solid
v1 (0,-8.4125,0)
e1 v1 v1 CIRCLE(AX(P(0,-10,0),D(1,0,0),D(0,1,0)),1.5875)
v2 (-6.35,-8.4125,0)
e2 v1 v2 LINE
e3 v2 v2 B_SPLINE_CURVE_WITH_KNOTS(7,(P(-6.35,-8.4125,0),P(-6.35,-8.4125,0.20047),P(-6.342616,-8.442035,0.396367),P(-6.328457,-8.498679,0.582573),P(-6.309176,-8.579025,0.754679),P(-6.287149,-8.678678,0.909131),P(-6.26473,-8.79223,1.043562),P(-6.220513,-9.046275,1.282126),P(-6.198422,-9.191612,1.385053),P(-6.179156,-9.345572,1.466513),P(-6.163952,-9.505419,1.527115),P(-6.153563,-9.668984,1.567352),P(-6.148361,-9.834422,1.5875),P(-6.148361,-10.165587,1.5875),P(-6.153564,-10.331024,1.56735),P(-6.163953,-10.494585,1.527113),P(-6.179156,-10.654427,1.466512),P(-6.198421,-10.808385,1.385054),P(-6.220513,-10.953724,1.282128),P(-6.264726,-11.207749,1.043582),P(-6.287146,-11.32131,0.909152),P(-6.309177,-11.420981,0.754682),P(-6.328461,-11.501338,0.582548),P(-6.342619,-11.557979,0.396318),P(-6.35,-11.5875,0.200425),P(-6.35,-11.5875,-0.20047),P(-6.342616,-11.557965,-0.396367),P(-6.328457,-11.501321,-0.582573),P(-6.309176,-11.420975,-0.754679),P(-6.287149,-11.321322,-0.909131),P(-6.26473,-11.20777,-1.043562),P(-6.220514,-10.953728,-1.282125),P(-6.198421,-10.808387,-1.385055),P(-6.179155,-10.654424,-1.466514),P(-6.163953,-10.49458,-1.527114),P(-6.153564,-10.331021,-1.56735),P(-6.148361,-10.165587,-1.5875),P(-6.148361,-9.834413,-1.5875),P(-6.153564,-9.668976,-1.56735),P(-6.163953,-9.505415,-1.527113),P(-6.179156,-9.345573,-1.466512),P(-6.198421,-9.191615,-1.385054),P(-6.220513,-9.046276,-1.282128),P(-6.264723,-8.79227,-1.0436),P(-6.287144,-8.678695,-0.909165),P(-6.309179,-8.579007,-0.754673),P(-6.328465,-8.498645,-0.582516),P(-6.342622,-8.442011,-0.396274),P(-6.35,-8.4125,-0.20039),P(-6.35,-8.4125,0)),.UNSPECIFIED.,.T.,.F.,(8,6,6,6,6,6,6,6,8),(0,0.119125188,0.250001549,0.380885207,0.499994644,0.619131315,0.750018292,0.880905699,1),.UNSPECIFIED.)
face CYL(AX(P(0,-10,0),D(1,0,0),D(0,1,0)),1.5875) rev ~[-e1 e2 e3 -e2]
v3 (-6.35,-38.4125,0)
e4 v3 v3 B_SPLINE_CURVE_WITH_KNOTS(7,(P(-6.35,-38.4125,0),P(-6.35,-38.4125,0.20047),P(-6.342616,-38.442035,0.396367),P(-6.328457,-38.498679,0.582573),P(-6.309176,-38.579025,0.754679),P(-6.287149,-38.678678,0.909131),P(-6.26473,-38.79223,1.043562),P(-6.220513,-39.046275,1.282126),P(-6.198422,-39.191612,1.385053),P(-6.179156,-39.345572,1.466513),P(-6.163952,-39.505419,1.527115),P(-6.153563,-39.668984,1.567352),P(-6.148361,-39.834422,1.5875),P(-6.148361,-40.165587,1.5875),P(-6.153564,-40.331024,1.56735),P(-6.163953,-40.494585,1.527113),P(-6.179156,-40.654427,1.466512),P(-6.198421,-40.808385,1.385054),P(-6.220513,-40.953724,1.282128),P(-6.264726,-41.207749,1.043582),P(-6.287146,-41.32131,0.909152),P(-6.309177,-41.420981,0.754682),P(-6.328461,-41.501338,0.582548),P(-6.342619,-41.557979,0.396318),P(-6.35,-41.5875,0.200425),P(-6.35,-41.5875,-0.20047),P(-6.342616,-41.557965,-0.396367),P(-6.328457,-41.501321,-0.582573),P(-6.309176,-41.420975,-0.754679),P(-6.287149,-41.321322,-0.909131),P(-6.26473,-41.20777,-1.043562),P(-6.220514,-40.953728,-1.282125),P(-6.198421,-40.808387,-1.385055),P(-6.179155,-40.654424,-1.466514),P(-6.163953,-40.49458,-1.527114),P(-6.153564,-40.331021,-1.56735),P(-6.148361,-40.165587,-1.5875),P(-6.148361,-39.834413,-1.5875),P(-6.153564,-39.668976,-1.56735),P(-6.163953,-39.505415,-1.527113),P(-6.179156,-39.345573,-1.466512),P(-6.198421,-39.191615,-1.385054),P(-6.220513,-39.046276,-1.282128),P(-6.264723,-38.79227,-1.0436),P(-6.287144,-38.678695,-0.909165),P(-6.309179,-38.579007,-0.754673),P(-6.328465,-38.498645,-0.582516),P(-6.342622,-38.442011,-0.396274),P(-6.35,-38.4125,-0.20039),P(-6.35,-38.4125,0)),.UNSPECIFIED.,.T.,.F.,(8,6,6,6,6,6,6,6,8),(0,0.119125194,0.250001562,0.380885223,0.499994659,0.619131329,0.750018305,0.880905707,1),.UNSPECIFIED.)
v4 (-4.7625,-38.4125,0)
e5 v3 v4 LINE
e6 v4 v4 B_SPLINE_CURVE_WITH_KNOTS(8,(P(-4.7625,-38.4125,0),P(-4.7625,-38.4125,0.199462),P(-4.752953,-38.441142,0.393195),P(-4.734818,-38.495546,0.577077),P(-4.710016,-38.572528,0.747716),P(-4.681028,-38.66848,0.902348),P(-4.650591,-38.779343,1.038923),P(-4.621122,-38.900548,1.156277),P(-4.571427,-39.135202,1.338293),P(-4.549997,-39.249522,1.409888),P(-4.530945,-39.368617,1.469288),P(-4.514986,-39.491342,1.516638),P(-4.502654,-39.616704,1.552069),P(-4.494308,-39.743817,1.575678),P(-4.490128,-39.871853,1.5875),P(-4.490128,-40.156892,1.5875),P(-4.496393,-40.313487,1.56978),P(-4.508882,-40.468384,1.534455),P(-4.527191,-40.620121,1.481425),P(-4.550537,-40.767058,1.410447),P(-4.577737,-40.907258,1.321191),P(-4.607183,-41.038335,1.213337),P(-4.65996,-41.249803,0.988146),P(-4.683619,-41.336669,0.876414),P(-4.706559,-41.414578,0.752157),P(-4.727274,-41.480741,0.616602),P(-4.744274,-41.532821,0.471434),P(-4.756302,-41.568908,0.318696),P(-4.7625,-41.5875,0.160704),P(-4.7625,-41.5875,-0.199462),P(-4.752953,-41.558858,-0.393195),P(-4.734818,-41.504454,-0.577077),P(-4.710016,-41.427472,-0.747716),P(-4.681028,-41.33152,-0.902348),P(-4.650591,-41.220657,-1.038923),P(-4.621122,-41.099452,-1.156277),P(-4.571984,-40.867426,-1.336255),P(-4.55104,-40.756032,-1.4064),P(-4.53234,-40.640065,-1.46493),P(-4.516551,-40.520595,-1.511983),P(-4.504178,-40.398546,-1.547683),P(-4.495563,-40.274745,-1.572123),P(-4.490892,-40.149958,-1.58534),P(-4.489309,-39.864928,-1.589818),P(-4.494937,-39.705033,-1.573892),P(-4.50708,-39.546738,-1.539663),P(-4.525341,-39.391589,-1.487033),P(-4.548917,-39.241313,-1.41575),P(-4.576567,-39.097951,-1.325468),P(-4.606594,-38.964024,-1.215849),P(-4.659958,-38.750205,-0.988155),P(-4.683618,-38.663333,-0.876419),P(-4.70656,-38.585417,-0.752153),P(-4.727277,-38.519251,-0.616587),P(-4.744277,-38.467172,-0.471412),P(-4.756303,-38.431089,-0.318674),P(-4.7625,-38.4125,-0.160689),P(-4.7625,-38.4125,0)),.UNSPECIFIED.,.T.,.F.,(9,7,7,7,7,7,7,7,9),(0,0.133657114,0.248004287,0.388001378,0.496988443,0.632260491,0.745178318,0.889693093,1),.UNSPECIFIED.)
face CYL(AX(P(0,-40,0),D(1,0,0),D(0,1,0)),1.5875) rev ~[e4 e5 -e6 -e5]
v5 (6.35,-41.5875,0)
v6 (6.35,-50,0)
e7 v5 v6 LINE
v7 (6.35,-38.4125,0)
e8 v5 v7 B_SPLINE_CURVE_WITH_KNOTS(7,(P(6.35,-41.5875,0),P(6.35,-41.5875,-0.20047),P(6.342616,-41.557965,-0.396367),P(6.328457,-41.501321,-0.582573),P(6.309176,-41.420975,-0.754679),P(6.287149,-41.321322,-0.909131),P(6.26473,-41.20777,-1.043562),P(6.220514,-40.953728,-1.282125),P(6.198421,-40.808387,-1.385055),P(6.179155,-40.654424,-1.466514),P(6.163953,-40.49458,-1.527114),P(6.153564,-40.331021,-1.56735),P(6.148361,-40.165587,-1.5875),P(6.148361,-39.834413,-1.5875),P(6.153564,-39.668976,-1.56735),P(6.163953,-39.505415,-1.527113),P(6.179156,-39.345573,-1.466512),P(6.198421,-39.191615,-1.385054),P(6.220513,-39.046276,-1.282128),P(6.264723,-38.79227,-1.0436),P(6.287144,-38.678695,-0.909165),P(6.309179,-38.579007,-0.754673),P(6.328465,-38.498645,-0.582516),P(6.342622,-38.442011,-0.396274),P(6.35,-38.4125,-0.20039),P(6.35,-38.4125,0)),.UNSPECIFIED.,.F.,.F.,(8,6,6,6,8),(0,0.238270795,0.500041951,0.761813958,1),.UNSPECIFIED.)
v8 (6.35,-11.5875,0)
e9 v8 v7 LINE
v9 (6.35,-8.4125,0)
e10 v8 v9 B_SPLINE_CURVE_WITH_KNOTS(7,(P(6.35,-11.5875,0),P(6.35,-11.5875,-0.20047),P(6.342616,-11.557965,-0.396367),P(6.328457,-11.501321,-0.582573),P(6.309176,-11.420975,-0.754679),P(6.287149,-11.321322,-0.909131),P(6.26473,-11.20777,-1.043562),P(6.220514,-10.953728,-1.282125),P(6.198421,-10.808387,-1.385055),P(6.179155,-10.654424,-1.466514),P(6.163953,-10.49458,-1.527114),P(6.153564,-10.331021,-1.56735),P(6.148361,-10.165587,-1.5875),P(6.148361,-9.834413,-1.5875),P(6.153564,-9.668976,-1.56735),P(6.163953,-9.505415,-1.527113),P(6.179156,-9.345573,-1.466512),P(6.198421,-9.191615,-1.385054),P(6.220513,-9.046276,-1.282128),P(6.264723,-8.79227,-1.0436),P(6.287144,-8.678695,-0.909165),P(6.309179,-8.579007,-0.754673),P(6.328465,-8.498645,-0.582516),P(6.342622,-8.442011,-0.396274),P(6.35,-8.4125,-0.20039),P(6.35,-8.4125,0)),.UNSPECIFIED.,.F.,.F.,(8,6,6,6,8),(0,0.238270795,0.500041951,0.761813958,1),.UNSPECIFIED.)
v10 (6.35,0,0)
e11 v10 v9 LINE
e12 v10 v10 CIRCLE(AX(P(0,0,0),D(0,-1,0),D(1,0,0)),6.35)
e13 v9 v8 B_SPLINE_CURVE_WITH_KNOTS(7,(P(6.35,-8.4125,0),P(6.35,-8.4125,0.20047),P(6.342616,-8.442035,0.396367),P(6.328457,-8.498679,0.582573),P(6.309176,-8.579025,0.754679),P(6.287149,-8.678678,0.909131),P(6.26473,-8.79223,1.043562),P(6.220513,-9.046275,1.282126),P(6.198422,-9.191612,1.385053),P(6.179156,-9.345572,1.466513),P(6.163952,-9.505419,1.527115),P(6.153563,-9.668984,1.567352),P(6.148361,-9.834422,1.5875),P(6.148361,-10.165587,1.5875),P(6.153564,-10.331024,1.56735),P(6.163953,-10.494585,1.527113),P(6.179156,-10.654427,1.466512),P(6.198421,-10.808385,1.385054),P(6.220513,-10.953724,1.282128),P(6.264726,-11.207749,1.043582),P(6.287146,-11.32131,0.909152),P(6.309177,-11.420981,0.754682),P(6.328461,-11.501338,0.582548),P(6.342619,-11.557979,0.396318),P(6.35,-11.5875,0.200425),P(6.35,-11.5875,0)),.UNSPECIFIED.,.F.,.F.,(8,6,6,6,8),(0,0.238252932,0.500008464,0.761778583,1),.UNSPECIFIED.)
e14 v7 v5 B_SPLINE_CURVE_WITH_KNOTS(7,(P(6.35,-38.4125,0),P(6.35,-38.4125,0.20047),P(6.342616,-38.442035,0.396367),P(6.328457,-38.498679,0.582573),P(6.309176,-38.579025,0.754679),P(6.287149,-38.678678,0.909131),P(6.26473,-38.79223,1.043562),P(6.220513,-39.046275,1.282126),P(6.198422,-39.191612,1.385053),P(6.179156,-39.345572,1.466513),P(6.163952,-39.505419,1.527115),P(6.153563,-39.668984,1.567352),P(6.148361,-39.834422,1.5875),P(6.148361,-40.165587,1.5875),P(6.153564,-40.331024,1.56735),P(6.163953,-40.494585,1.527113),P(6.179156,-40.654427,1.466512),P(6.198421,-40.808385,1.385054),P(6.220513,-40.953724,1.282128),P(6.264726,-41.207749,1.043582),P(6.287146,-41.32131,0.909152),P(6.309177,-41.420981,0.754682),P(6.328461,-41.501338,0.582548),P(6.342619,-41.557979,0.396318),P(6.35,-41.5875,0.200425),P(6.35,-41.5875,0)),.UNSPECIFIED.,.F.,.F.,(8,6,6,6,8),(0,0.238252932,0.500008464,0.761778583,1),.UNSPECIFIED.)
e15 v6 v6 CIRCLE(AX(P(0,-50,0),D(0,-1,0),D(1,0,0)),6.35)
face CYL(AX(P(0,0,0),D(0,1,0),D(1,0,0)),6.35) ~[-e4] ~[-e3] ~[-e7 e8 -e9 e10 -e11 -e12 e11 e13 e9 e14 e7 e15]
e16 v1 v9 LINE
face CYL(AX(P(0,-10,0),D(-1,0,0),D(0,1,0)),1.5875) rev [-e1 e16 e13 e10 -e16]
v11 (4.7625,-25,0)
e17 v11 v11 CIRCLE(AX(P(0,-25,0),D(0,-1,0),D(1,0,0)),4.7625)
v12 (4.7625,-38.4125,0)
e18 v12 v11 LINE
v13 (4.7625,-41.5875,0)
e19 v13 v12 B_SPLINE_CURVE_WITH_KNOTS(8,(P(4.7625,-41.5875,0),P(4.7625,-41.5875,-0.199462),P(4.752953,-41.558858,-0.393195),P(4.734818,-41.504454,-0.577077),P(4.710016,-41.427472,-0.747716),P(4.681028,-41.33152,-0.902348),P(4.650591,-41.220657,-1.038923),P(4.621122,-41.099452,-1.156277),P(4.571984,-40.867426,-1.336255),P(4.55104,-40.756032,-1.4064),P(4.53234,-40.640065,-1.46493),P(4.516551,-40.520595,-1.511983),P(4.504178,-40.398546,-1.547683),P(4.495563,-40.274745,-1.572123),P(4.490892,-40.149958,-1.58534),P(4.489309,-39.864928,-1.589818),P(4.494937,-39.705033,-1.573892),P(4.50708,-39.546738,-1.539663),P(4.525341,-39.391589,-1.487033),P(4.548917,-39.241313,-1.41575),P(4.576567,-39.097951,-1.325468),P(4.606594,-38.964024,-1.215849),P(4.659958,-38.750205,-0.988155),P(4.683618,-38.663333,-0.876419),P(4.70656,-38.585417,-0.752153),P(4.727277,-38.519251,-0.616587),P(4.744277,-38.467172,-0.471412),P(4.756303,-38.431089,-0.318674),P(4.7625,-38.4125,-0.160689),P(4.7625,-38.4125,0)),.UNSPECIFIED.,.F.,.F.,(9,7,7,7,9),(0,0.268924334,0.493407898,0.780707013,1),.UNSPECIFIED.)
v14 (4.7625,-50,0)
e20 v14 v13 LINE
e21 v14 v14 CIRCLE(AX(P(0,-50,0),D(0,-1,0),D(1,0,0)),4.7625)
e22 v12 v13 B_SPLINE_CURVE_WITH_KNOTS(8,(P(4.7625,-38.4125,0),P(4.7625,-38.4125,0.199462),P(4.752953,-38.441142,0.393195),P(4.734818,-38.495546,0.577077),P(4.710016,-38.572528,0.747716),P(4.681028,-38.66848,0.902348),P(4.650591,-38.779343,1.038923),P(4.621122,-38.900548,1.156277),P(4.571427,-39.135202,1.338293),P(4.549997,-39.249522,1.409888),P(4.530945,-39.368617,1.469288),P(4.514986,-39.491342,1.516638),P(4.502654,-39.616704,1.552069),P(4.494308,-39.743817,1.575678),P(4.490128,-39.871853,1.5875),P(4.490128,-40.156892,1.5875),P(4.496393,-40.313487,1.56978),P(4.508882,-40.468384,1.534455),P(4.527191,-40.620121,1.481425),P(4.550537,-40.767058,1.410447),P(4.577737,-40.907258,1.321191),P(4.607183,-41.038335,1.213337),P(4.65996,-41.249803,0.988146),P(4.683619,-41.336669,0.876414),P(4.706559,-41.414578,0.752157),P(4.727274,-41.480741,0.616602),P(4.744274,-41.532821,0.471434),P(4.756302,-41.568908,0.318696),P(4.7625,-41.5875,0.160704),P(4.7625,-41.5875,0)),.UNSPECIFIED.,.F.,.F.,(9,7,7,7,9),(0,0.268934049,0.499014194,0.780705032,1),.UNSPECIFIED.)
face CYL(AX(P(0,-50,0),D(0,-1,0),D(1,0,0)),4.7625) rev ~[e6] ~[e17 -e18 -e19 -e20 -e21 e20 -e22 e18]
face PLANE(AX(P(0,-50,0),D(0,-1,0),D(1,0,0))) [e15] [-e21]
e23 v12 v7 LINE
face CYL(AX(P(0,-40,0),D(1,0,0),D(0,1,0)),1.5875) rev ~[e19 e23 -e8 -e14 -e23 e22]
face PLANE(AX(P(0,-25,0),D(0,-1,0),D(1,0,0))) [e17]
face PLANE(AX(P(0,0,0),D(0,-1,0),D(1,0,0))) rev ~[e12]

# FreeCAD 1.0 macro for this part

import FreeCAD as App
import Part
import Sketcher
from FreeCAD import Vector

doc = App.newDocument("Part")
body = doc.addObject("PartDesign::Body", "Body")

# Sketch on XZ plane
sketch1 = body.newObject("Sketcher::SketchObject", "Sketch")
sketch1.AttachmentSupport = (doc.getObject("XZ_Plane"), [""])
sketch1.MapMode = "FlatFace"
sketch1.addGeometry(Part.Circle(Vector(0, 0, 0), Vector(0, 0, 1), 6.35), False)
sketch1.addConstraint(Sketcher.Constraint("Coincident", 0, 3, -1, 1))
sketch1.addConstraint(Sketcher.Constraint("Diameter", 0, 12.7))
pad1 = body.newObject("PartDesign::Pad", "Pad")
pad1.Profile = sketch1
pad1.Length = 50

# Sketch on YZ plane
sketch2 = body.newObject("Sketcher::SketchObject", "Sketch001")
sketch2.AttachmentSupport = (doc.getObject("YZ_Plane"), [""])
sketch2.MapMode = "FlatFace"
sketch2.addGeometry(Part.Circle(Vector(-10, 0, 0), Vector(0, 0, 1), 1.5875), False)
sketch2.addGeometry(Part.Circle(Vector(-40, 0, 0), Vector(0, 0, 1), 1.5875), False)
sketch2.addConstraint(Sketcher.Constraint("Equal", 0, 1))
sketch2.addConstraint(Sketcher.Constraint("PointOnObject", 0, 3, -1))
sketch2.addConstraint(Sketcher.Constraint("PointOnObject", 1, 3, -1))
sketch2.addConstraint(Sketcher.Constraint("Diameter", 0, 3.175))
sketch2.addConstraint(Sketcher.Constraint("DistanceX", 0, 3, -1, 1, 10.0))
sketch2.addConstraint(Sketcher.Constraint("DistanceX", 1, 3, -1, 1, 40.0))
pocket1 = body.newObject("PartDesign::Pocket", "Pocket")
pocket1.Profile = sketch2
pocket1.Length = 25
pocket1.Midplane = True

# Sketch on XZ plane
sketch3 = body.newObject("Sketcher::SketchObject", "Sketch002")
sketch3.AttachmentSupport = (doc.getObject("XZ_Plane"), [""])
sketch3.MapMode = "FlatFace"
sketch3.AttachmentOffset = App.Placement(Vector(0, 0, 50), App.Rotation())
sketch3.addGeometry(Part.Circle(Vector(0, 0, 0), Vector(0, 0, 1), 4.7625), False)
sketch3.addConstraint(Sketcher.Constraint("Coincident", 0, 3, -1, 1))
sketch3.addConstraint(Sketcher.Constraint("Diameter", 0, 9.525))
pocket2 = body.newObject("PartDesign::Pocket", "Pocket001")
pocket2.Profile = sketch3
pocket2.Length = 25

doc.recompute()
